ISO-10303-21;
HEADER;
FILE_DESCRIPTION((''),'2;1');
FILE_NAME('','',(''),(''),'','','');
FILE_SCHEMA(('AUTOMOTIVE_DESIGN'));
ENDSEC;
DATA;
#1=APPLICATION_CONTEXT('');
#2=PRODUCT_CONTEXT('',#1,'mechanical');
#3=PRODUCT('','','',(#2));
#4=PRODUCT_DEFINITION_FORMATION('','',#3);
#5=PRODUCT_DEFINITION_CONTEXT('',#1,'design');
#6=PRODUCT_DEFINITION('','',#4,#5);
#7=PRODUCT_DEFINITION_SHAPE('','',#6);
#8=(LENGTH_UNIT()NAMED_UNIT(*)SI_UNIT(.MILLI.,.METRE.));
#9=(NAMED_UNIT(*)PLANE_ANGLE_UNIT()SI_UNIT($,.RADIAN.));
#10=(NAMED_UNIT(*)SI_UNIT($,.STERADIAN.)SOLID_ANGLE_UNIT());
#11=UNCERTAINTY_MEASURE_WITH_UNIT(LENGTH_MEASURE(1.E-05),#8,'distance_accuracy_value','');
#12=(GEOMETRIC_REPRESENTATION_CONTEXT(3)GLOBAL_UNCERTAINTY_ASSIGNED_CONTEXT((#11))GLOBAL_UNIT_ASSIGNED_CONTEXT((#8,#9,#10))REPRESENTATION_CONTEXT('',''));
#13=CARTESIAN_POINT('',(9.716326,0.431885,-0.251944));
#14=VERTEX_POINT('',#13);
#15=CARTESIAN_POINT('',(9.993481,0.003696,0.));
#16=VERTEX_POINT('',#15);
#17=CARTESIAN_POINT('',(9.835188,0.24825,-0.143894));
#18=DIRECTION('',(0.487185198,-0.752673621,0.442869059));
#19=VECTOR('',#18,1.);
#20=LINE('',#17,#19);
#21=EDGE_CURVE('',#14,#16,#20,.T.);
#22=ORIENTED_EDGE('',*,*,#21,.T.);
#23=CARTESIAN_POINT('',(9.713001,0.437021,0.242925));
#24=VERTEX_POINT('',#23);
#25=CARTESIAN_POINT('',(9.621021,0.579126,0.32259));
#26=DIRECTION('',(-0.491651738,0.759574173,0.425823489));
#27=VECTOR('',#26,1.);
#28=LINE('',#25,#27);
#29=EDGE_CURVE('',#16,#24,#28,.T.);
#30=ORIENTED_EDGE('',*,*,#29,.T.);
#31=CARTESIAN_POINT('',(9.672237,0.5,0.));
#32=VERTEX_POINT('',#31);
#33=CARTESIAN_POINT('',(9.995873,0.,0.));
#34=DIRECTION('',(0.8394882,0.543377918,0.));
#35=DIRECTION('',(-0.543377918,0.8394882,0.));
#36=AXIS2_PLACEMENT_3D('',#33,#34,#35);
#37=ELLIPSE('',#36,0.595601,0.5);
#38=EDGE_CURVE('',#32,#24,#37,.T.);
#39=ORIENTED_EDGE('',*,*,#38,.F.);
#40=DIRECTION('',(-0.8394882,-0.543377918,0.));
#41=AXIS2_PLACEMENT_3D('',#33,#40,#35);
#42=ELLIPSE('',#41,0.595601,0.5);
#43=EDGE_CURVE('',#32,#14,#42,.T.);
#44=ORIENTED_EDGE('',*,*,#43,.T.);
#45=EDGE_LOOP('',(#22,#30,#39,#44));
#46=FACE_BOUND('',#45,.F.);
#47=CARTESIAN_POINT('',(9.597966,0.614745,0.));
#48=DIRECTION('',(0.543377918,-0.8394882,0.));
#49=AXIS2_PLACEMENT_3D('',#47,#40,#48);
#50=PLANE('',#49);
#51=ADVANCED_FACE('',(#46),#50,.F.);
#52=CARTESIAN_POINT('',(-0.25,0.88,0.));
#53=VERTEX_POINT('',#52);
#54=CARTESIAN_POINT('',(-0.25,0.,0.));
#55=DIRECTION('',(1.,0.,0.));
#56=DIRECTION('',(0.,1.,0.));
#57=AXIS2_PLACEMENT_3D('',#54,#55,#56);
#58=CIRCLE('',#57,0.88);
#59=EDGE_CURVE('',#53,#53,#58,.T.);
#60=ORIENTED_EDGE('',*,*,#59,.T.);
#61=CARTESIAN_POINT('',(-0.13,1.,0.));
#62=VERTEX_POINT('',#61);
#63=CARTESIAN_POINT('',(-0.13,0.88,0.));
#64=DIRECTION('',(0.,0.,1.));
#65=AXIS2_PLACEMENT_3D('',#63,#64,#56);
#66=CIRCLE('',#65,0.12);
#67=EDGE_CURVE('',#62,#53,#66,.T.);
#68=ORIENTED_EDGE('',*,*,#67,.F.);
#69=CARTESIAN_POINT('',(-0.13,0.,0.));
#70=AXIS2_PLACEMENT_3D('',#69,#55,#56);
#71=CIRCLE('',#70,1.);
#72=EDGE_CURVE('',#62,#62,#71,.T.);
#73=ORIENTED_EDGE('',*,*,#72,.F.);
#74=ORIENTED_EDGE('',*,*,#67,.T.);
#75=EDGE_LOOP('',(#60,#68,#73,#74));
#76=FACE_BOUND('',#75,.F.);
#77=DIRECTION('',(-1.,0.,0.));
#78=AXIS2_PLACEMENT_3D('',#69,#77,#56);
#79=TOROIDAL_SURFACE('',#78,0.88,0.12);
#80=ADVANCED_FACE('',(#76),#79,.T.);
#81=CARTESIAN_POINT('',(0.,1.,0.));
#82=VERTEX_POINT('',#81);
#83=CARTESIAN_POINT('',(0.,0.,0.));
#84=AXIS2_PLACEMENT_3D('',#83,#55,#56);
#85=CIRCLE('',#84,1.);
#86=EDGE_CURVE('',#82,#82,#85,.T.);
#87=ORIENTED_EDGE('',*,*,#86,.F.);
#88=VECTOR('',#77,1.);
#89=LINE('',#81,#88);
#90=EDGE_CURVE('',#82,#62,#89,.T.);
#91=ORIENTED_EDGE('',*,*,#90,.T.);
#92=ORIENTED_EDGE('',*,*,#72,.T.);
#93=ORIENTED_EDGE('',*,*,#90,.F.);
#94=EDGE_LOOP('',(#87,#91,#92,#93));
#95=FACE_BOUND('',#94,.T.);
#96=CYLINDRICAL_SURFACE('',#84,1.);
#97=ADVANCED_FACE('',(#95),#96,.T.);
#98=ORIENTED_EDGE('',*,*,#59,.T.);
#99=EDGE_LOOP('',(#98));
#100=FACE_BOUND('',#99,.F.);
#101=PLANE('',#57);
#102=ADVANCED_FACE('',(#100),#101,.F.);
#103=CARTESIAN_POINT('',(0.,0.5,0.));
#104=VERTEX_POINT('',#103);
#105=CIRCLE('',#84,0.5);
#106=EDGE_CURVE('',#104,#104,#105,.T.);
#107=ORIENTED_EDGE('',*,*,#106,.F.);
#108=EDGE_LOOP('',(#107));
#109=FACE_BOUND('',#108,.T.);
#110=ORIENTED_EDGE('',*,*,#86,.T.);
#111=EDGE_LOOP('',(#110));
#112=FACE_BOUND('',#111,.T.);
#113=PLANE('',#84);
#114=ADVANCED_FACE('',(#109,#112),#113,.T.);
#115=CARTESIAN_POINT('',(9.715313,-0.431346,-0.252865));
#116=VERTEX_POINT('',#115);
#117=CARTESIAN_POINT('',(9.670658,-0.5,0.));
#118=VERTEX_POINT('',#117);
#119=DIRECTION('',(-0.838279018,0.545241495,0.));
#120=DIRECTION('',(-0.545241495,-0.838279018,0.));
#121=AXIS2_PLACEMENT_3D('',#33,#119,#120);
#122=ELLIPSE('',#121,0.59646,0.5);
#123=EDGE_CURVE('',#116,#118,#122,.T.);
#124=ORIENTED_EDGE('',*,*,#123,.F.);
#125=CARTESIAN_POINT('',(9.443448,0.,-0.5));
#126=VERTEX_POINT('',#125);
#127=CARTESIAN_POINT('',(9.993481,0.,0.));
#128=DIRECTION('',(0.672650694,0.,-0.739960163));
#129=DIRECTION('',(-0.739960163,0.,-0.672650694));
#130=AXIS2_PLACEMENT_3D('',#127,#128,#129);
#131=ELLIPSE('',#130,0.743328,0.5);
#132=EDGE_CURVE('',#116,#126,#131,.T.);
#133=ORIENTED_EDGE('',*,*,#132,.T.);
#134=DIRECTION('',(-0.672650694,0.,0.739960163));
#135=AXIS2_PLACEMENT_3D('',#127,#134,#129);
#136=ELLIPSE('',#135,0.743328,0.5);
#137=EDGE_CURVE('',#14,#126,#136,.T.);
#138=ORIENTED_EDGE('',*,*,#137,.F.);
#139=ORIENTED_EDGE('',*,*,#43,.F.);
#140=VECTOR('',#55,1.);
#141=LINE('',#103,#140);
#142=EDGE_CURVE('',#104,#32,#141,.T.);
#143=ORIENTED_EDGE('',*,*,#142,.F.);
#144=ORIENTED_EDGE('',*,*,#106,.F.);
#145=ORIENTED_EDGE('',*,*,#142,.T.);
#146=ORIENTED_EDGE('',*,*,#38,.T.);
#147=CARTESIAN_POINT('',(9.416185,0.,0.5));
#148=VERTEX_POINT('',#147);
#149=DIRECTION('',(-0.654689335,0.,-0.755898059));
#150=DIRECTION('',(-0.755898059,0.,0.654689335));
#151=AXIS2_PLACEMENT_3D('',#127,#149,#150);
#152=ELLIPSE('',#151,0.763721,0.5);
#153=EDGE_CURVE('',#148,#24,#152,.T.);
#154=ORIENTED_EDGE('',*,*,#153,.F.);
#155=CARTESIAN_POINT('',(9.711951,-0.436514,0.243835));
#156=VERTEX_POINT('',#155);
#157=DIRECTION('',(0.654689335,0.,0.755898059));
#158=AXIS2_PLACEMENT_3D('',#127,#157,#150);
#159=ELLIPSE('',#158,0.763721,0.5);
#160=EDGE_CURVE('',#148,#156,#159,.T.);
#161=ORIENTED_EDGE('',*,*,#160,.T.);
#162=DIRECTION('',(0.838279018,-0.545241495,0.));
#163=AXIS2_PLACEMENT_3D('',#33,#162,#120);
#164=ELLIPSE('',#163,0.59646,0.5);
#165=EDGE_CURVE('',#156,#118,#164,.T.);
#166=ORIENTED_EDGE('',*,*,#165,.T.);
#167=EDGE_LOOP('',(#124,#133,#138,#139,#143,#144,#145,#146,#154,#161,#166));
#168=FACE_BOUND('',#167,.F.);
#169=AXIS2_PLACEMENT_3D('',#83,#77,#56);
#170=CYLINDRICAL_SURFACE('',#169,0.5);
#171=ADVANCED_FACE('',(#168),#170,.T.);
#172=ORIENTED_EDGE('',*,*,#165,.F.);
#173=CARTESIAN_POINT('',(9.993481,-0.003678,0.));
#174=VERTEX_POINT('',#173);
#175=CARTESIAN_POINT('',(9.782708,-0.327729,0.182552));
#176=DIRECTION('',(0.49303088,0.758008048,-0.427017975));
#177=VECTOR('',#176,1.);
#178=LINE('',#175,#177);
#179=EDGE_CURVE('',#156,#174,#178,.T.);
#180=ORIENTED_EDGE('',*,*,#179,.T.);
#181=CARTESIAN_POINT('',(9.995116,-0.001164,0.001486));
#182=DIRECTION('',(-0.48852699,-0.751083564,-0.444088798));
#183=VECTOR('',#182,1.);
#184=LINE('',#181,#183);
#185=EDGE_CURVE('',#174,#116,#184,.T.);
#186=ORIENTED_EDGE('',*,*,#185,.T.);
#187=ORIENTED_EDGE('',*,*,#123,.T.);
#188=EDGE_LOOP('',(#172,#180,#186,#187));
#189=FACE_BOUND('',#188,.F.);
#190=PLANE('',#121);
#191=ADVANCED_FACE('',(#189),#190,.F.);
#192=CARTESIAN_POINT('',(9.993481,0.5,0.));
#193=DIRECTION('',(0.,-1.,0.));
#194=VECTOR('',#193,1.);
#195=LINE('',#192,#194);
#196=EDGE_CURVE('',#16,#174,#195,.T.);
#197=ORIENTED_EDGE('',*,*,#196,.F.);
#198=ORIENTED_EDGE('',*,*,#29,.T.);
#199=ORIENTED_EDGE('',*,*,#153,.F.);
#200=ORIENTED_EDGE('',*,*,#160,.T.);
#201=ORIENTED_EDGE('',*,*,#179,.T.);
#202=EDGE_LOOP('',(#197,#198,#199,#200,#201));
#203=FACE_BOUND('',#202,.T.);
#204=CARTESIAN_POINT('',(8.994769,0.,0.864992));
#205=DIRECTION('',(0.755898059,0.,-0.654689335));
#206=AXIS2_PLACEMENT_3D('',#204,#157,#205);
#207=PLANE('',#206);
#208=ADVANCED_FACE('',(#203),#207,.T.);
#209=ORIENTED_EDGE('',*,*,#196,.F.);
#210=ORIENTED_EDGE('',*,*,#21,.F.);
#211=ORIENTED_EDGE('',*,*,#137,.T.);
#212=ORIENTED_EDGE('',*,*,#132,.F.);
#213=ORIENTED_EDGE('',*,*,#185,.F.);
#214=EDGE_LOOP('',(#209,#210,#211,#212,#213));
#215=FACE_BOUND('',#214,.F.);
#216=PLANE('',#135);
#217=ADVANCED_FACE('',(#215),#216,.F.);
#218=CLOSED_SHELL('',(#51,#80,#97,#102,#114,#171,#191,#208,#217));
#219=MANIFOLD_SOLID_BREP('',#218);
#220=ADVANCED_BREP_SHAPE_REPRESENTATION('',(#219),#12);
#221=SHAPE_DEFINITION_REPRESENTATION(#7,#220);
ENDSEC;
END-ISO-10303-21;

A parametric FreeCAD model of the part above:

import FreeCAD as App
import Part
import Sketcher
from FreeCAD import Vector


def edges_at(feature, points):
    """Names of the edges that pass closest to the given points."""
    edges = feature.Shape.Edges
    near = lambda p: min(range(len(edges)), key=lambda i: edges[i].distToShape(Part.Vertex(*p))[0])
    return sorted({f"Edge{near(p) + 1}" for p in points})

doc = App.newDocument("Part")
body = doc.addObject("PartDesign::Body", "Body")

# Sketch on YZ plane
sketch1 = body.newObject("Sketcher::SketchObject", "Sketch")
sketch1.AttachmentSupport = (doc.getObject("YZ_Plane"), [""])
sketch1.MapMode = "FlatFace"
sketch1.addGeometry(Part.Circle(Vector(0, 0, 0), Vector(0, 0, 1), 0.5), False)
sketch1.addConstraint([
    Sketcher.Constraint("Coincident", 0, 3, -1, 1),
    Sketcher.Constraint("Diameter", 0, 1.0),
])
pad1 = body.newObject("PartDesign::Pad", "Pad")
pad1.Profile = sketch1
pad1.Length = 10

# Sketch on YZ plane
sketch2 = body.newObject("Sketcher::SketchObject", "Sketch001")
sketch2.AttachmentSupport = (doc.getObject("YZ_Plane"), [""])
sketch2.MapMode = "FlatFace"
sketch2.addGeometry(Part.Circle(Vector(0, 0, 0), Vector(0, 0, 1), 1), False)
sketch2.addConstraint([
    Sketcher.Constraint("Coincident", 0, 3, -1, 1),
    Sketcher.Constraint("Diameter", 0, 2.0),
])
pad2 = body.newObject("PartDesign::Pad", "Pad001")
pad2.Profile = sketch2
pad2.Length = 0.25
pad2.Reversed = True
doc.recompute()

fillet = body.newObject("PartDesign::Fillet", "Fillet")
fillet.Base = (pad2, edges_at(pad2, [(-0.25, -1, 0)]))
fillet.Radius = 0.12

# Sketch on XZ plane
sketch3 = body.newObject("Sketcher::SketchObject", "Sketch002")
sketch3.AttachmentSupport = (doc.getObject("XZ_Plane"), [""])
sketch3.MapMode = "FlatFace"
sketch3.addGeometry([
    Part.LineSegment(Vector(8.994769, 0.864992, 0), Vector(9.993481, 0, 0)),  # 0
    Part.LineSegment(Vector(9.993481, 0, 0), Vector(9.121273, -0.792869, 0)),  # 1
    Part.LineSegment(Vector(9.121273, -0.792869, 0), Vector(10.612681, -1.032559, 0)),  # 2
    Part.LineSegment(Vector(10.612681, -1.032559, 0), Vector(10.752501, 0.918256, 0)),  # 3
    Part.LineSegment(Vector(10.752501, 0.918256, 0), Vector(8.994769, 0.864992, 0)),  # 4
], False)
sketch3.addConstraint([
    Sketcher.Constraint("Coincident", 0, 2, 1, 1),
    Sketcher.Constraint("Coincident", 1, 2, 2, 1),
    Sketcher.Constraint("Coincident", 2, 2, 3, 1),
    Sketcher.Constraint("Coincident", 3, 2, 4, 1),
    Sketcher.Constraint("Coincident", 4, 2, 0, 1),
    Sketcher.Constraint("PointOnObject", 0, 2, -1),
    Sketcher.Constraint("DistanceX", -1, 1, 3, 2, 10.752501),
    Sketcher.Constraint("DistanceX", 0, 2, 2, 2, 0.6192),
    Sketcher.Constraint("Distance", 3, 1.95582),
    Sketcher.Constraint("Distance", 4, 1.758539),
    Sketcher.Constraint("DistanceX", -1, 1, 0, 2, 9.993481),
    Sketcher.Constraint("DistanceY", 1, 2, -1, 1, 0.792869),
    Sketcher.Constraint("DistanceY", 2, 2, -1, 1, 1.032559),
    Sketcher.Constraint("DistanceX", -1, 1, 4, 2, 8.994769),
    Sketcher.Constraint("DistanceX", 1, 2, 3, 2, 1.631228),
])
pocket1 = body.newObject("PartDesign::Pocket", "Pocket")
pocket1.Profile = sketch3
pocket1.Type = "ThroughAll"
pocket1.Midplane = True

# Sketch on XY plane
sketch4 = body.newObject("Sketcher::SketchObject", "Sketch003")
sketch4.AttachmentSupport = (doc.getObject("XY_Plane"), [""])
sketch4.MapMode = "FlatFace"
sketch4.addGeometry([
    Part.LineSegment(Vector(10.3, 0.6, 0), Vector(9.6, 0.6, 0)),  # 0
    Part.LineSegment(Vector(9.6, 0.6, 0), Vector(10, 0, 0)),  # 1
    Part.LineSegment(Vector(10, 0, 0), Vector(9.6, -0.7, 0)),  # 2
    Part.LineSegment(Vector(9.6, -0.7, 0), Vector(10.3, -0.7, 0)),  # 3
    Part.LineSegment(Vector(10.3, -0.7, 0), Vector(10.3, 0.6, 0)),  # 4
], False)
sketch4.addConstraint([
    Sketcher.Constraint("Coincident", 0, 2, 1, 1),
    Sketcher.Constraint("Coincident", 1, 2, 2, 1),
    Sketcher.Constraint("Coincident", 2, 2, 3, 1),
    Sketcher.Constraint("Coincident", 3, 2, 4, 1),
    Sketcher.Constraint("Coincident", 4, 2, 0, 1),
    Sketcher.Constraint("Horizontal", 0),
    Sketcher.Constraint("Horizontal", 3),
    Sketcher.Constraint("Vertical", 4),
    Sketcher.Constraint("PointOnObject", 1, 2, -1),
    Sketcher.Constraint("DistanceX", 0, 2, 0, 1, 0.737642),
    Sketcher.Constraint("DistanceX", 3, 1, 3, 2, 0.763238),
    Sketcher.Constraint("DistanceY", 4, 1, 4, 2, 1.265859),
    Sketcher.Constraint("DistanceX", -1, 1, 2, 2, 9.572369),
    Sketcher.Constraint("Distance", 1, 0.732285),
    Sketcher.Constraint("Distance", 2, 0.776727),
])
pocket2 = body.newObject("PartDesign::Pocket", "Pocket001")
pocket2.Profile = sketch4
pocket2.Type = "ThroughAll"
pocket2.Midplane = True

doc.recompute()
